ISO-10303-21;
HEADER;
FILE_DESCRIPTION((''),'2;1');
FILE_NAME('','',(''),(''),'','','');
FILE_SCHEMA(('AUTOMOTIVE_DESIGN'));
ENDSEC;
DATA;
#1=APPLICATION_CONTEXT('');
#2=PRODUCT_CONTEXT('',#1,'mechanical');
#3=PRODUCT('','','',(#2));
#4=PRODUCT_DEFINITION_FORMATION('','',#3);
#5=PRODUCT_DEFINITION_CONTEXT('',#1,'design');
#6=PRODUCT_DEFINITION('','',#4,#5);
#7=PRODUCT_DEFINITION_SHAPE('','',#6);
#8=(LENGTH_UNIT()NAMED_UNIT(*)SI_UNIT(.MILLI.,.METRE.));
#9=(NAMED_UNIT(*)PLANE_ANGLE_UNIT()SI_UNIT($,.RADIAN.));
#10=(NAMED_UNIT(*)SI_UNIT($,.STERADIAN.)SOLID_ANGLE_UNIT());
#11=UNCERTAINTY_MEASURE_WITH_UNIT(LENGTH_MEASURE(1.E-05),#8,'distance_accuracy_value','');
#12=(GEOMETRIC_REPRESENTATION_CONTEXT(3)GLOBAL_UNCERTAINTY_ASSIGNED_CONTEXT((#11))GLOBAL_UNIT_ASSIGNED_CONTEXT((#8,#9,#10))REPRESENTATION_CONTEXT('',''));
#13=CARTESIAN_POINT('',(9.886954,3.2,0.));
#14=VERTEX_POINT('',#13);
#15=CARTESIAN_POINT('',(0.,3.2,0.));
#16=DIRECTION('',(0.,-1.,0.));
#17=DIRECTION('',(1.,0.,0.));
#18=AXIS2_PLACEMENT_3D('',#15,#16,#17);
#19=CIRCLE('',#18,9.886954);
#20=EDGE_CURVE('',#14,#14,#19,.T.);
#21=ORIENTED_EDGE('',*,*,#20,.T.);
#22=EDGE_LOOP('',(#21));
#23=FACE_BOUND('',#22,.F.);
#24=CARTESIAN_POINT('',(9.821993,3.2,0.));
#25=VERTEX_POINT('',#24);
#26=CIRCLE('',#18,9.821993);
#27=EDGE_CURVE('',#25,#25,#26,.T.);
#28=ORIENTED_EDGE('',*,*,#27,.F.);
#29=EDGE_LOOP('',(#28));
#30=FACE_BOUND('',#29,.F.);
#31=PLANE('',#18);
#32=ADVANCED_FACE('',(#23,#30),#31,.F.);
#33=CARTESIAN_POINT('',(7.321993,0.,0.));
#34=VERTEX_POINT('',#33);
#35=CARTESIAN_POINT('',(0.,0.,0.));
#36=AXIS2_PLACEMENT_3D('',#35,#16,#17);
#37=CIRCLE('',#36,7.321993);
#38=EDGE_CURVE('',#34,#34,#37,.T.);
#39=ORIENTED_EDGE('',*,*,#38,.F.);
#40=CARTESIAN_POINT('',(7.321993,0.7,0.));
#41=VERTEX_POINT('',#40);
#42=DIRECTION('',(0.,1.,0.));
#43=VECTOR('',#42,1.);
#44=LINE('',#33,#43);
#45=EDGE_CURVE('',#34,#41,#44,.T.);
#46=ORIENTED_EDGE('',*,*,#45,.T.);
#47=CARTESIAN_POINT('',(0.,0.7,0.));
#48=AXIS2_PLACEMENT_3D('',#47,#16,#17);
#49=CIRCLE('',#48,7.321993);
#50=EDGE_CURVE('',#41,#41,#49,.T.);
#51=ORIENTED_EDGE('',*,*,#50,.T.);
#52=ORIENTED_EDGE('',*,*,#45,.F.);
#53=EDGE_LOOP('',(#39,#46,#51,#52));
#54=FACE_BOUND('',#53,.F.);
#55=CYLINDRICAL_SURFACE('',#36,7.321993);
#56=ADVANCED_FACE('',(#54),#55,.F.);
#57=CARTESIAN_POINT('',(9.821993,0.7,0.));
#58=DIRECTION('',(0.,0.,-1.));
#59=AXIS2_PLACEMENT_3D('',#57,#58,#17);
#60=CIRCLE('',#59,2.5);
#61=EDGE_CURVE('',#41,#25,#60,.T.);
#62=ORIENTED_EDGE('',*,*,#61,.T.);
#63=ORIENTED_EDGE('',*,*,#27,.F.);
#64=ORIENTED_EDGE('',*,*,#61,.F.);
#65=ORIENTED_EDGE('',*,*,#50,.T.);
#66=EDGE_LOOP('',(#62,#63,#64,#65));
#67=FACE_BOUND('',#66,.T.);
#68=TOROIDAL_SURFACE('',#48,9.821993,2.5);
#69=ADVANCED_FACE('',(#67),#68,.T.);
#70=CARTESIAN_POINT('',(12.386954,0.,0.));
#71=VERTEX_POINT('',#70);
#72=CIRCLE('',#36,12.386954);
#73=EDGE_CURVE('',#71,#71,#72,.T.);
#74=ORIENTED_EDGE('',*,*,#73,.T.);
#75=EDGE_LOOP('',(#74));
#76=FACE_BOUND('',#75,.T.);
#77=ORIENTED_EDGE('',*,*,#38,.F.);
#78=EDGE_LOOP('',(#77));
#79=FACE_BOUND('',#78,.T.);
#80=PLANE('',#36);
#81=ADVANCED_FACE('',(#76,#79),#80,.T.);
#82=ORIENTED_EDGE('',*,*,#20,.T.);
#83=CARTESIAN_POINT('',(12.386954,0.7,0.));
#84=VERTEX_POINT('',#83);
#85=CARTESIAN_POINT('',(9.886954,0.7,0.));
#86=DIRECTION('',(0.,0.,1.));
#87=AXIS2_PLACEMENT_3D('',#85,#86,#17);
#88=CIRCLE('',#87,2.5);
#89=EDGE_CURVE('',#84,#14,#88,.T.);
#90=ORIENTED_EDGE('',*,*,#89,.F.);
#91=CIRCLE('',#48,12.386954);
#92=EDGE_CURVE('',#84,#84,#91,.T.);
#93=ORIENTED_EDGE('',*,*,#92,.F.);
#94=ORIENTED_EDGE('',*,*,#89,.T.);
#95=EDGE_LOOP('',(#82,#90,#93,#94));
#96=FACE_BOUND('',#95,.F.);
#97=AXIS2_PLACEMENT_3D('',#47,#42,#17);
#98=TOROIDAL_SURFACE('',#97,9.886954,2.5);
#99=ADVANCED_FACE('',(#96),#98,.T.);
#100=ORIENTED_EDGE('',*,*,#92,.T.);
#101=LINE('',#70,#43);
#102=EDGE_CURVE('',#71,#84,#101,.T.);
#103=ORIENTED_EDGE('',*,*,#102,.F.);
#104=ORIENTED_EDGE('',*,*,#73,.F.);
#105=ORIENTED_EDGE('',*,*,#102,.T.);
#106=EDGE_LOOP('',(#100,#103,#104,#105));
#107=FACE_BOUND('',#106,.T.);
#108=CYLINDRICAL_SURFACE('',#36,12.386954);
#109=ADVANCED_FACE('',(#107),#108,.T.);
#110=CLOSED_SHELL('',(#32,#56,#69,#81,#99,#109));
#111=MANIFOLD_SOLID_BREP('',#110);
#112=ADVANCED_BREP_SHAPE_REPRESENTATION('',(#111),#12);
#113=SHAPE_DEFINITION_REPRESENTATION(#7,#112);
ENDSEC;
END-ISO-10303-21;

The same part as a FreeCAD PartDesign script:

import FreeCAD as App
import Part
import Sketcher

V = App.Vector
Q = App.Units.Quantity


def edges_at(feature, points):
    """Names of the edges that pass closest to the given points."""
    edges = feature.Shape.Edges
    near = lambda p: min(range(len(edges)), key=lambda i: edges[i].distToShape(Part.Vertex(*p))[0])
    return sorted({f"Edge{near(p) + 1}" for p in points})

doc = App.newDocument("Part")
body = doc.addObject("PartDesign::Body", "Body")

sketch1 = body.newObject("Sketcher::SketchObject", "Sketch")
sketch1.AttachmentSupport = (doc.getObject("XZ_Plane"), [""])
sketch1.MapMode = "FlatFace"
sketch1.addGeometry([
    Part.Circle(V(0, 0, 0), V(0, 0, 1), 12.386954),
    Part.Circle(V(0, 0, 0), V(0, 0, 1), 7.321993),
], False)
sketch1.addConstraint([
    Sketcher.Constraint("Coincident", 0, 3, -1, 1),
    Sketcher.Constraint("Coincident", 1, 3, -1, 1),
    Sketcher.Constraint("Diameter", 0, Q("24.773908 mm")),
    Sketcher.Constraint("Diameter", 1, Q("14.643986 mm")),
])
pad1 = body.newObject("PartDesign::Pad", "Pad")
pad1.Profile = sketch1
pad1.Length = 3.2
pad1.Reversed = True
doc.recompute()

fillet = body.newObject("PartDesign::Fillet", "Fillet")
fillet.Base = (pad1, edges_at(pad1, [(-12.387, 3.2, 0), (-7.322, 3.2, 0)]))
fillet.Radius = 2.5

doc.recompute()
